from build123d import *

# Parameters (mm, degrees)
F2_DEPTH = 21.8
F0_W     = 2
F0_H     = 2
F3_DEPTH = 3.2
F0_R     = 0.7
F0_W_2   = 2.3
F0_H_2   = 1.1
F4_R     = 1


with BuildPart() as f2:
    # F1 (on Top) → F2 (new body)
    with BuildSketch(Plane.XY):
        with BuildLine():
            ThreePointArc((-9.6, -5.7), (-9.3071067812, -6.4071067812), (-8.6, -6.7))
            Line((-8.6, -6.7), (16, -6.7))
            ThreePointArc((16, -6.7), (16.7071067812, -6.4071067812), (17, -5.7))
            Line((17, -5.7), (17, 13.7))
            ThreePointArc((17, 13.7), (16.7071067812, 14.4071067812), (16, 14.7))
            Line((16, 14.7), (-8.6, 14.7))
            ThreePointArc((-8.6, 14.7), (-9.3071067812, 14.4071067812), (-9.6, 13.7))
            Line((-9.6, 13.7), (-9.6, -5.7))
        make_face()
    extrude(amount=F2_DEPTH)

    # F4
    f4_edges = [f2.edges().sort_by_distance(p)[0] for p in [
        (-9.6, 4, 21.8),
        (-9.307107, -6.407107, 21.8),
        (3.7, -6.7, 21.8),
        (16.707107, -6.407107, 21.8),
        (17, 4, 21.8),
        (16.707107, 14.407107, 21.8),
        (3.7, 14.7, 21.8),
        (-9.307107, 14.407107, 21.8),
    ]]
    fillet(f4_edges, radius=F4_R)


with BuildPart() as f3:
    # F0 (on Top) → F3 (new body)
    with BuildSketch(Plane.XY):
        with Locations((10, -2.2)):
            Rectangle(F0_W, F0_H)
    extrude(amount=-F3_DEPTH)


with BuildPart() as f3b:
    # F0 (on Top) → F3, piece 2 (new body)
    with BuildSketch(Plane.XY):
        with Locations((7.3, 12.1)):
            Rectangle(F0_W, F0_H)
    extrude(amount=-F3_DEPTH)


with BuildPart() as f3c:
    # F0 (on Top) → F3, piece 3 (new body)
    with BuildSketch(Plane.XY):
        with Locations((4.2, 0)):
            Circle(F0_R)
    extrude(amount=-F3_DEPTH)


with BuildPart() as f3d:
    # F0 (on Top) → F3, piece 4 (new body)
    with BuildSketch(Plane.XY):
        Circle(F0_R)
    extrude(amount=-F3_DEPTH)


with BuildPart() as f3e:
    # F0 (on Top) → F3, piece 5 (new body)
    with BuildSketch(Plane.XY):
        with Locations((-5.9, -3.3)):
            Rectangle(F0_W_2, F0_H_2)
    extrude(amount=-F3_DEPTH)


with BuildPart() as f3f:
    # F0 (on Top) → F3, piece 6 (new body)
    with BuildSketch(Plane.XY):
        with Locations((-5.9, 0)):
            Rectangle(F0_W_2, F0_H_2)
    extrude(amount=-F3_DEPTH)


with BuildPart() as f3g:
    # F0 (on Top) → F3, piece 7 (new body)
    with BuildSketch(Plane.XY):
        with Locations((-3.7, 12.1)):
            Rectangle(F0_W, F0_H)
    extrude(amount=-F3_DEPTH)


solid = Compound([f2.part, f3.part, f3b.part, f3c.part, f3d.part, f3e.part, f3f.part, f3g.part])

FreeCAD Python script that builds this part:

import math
import FreeCAD as App
import Part
import Sketcher

V = App.Vector


def edges_at(feature, points):
    """Names of the edges that pass closest to the given points."""
    edges = feature.Shape.Edges
    near = lambda p: min(range(len(edges)), key=lambda i: edges[i].distToShape(Part.Vertex(*p))[0])
    return sorted({f"Edge{near(p) + 1}" for p in points})


def add_polygon(sketch, points):
    """Adds a closed chain of lines whose ends are joined by coincident constraints."""
    first, n = sketch.GeometryCount, len(points)
    for a, b in zip(points, points[1:] + points[:1]):
        sketch.addGeometry(Part.LineSegment(App.Vector(*a, 0), App.Vector(*b, 0)), False)
    for i in range(n):
        sketch.addConstraint(Sketcher.Constraint("Coincident", first + i, 2, first + (i + 1) % n, 1))

doc = App.newDocument("Part")
body = doc.addObject("PartDesign::Body", "Body")

sketch1 = body.newObject("Sketcher::SketchObject", "Sketch")
sketch1.AttachmentSupport = (doc.getObject("XY_Plane"), [""])
sketch1.MapMode = "FlatFace"
sketch1.addGeometry([
    Part.ArcOfCircle(Part.Circle(V(-8.6, -5.7, 0), V(0, 0, 1), 1), math.radians(180), math.radians(270)),
    Part.LineSegment(V(-8.6, -6.7, 0), V(16, -6.7, 0)),
    Part.ArcOfCircle(Part.Circle(V(16, -5.7, 0), V(0, 0, 1), 1), math.radians(-90), math.radians(0)),
    Part.LineSegment(V(17, -5.7, 0), V(17, 13.7, 0)),
    Part.ArcOfCircle(Part.Circle(V(16, 13.7, 0), V(0, 0, 1), 1), math.radians(0), math.radians(90)),
    Part.LineSegment(V(16, 14.7, 0), V(-8.6, 14.7, 0)),
    Part.ArcOfCircle(Part.Circle(V(-8.6, 13.7, 0), V(0, 0, 1), 1), math.radians(90), math.radians(180)),
    Part.LineSegment(V(-9.6, 13.7, 0), V(-9.6, -5.7, 0)),
], False)
sketch1.addConstraint([
    Sketcher.Constraint("Tangent", 0, 2, 1, 1),
    Sketcher.Constraint("Tangent", 1, 2, 2, 1),
    Sketcher.Constraint("Tangent", 2, 2, 3, 1),
    Sketcher.Constraint("Tangent", 3, 2, 4, 1),
    Sketcher.Constraint("Tangent", 4, 2, 5, 1),
    Sketcher.Constraint("Tangent", 5, 2, 6, 1),
    Sketcher.Constraint("Tangent", 6, 2, 7, 1),
    Sketcher.Constraint("Tangent", 7, 2, 0, 1),
    Sketcher.Constraint("Horizontal", 1),
    Sketcher.Constraint("Vertical", 3),
    Sketcher.Constraint("Horizontal", 5),
    Sketcher.Constraint("Vertical", 7),
    Sketcher.Constraint("Equal", 0, 2),
    Sketcher.Constraint("Equal", 2, 4),
    Sketcher.Constraint("Equal", 4, 6),
    Sketcher.Constraint("Radius", 0, 1.0),
    Sketcher.Constraint("DistanceX", 1, 1, 1, 2, 24.6),
    Sketcher.Constraint("DistanceY", 3, 1, 3, 2, 19.4),
    Sketcher.Constraint("DistanceX", -1, 1, 2, 3, 16.0),
    Sketcher.Constraint("DistanceY", 0, 3, -1, 1, 5.7),
])
pad1 = body.newObject("PartDesign::Pad", "Pad")
pad1.Profile = sketch1
pad1.Length = 21.8
doc.recompute()

fillet = body.newObject("PartDesign::Fillet", "Fillet")
fillet.Base = (pad1, edges_at(pad1, [
    (-9.6, 4, 21.8),
    (-9.307, -6.407, 21.8),
    (3.7, -6.7, 21.8),
    (16.707, -6.407, 21.8),
    (17, 4, 21.8),
    (16.707, 14.407, 21.8),
    (3.7, 14.7, 21.8),
    (-9.307, 14.407, 21.8),
]))
fillet.Radius = 1
body2 = doc.addObject("PartDesign::Body", "Body001")

sketch2 = body2.newObject("Sketcher::SketchObject", "Sketch001")
sketch2.AttachmentSupport = (doc.getObject("XY_Plane001"), [""])
sketch2.MapMode = "FlatFace"
add_polygon(sketch2, [(9, -1.2), (9, -3.2), (11, -3.2), (11, -1.2)])
sketch2.addConstraint([
    Sketcher.Constraint("Vertical", 0),
    Sketcher.Constraint("Horizontal", 1),
    Sketcher.Constraint("Vertical", 2),
    Sketcher.Constraint("Horizontal", 3),
    Sketcher.Constraint("Equal", 3, 0),
    Sketcher.Constraint("DistanceX", 1, 1, 1, 2, 2.0),
    Sketcher.Constraint("DistanceX", -1, 1, 0, 2, 9.0),
    Sketcher.Constraint("DistanceY", 0, 2, -1, 1, 3.2),
])
pad2 = body2.newObject("PartDesign::Pad", "Pad001")
pad2.Profile = sketch2
pad2.Length = 3.2
pad2.Reversed = True
body3 = doc.addObject("PartDesign::Body", "Body002")

sketch3 = body3.newObject("Sketcher::SketchObject", "Sketch002")
sketch3.AttachmentSupport = (doc.getObject("XY_Plane002"), [""])
sketch3.MapMode = "FlatFace"
add_polygon(sketch3, [(6.3, 13.1), (6.3, 11.1), (8.3, 11.1), (8.3, 13.1)])
sketch3.addConstraint([
    Sketcher.Constraint("Vertical", 0),
    Sketcher.Constraint("Horizontal", 1),
    Sketcher.Constraint("Vertical", 2),
    Sketcher.Constraint("Horizontal", 3),
    Sketcher.Constraint("Equal", 3, 0),
    Sketcher.Constraint("DistanceX", 1, 1, 1, 2, 2.0),
    Sketcher.Constraint("DistanceX", -1, 1, 0, 2, 6.3),
    Sketcher.Constraint("DistanceY", -1, 1, 0, 2, 11.1),
])
pad3 = body3.newObject("PartDesign::Pad", "Pad002")
pad3.Profile = sketch3
pad3.Length = 3.2
pad3.Reversed = True
body4 = doc.addObject("PartDesign::Body", "Body003")

sketch4 = body4.newObject("Sketcher::SketchObject", "Sketch003")
sketch4.AttachmentSupport = (doc.getObject("XY_Plane003"), [""])
sketch4.MapMode = "FlatFace"
sketch4.addGeometry(Part.Circle(V(4.2, 0, 0), V(0, 0, 1), 0.7), False)
sketch4.addConstraint([
    Sketcher.Constraint("PointOnObject", 0, 3, -1),
    Sketcher.Constraint("Diameter", 0, 1.4),
    Sketcher.Constraint("DistanceX", -1, 1, 0, 3, 4.2),
])
pad4 = body4.newObject("PartDesign::Pad", "Pad003")
pad4.Profile = sketch4
pad4.Length = 3.2
pad4.Reversed = True
body5 = doc.addObject("PartDesign::Body", "Body004")

sketch5 = body5.newObject("Sketcher::SketchObject", "Sketch004")
sketch5.AttachmentSupport = (doc.getObject("XY_Plane004"), [""])
sketch5.MapMode = "FlatFace"
sketch5.addGeometry(Part.Circle(V(0, 0, 0), V(0, 0, 1), 0.7), False)
sketch5.addConstraint([
    Sketcher.Constraint("Coincident", 0, 3, -1, 1),
    Sketcher.Constraint("Diameter", 0, 1.4),
])
pad5 = body5.newObject("PartDesign::Pad", "Pad004")
pad5.Profile = sketch5
pad5.Length = 3.2
pad5.Reversed = True
body6 = doc.addObject("PartDesign::Body", "Body005")

sketch6 = body6.newObject("Sketcher::SketchObject", "Sketch005")
sketch6.AttachmentSupport = (doc.getObject("XY_Plane005"), [""])
sketch6.MapMode = "FlatFace"
add_polygon(sketch6, [(-7, -2.8), (-7, -3.9), (-4.8, -3.9), (-4.8, -2.8)])
sketch6.addConstraint([
    Sketcher.Constraint("Vertical", 0),
    Sketcher.Constraint("Horizontal", 1),
    Sketcher.Constraint("Vertical", 2),
    Sketcher.Constraint("Horizontal", 3),
    Sketcher.Constraint("DistanceX", 1, 1, 1, 2, 2.3),
    Sketcher.Constraint("DistanceY", 0, 2, 0, 1, 1.1),
    Sketcher.Constraint("DistanceX", 0, 2, -1, 1, 7.05),
    Sketcher.Constraint("DistanceY", 0, 2, -1, 1, 3.85),
])
pad6 = body6.newObject("PartDesign::Pad", "Pad005")
pad6.Profile = sketch6
pad6.Length = 3.2
pad6.Reversed = True
body7 = doc.addObject("PartDesign::Body", "Body006")

sketch7 = body7.newObject("Sketcher::SketchObject", "Sketch006")
sketch7.AttachmentSupport = (doc.getObject("XY_Plane006"), [""])
sketch7.MapMode = "FlatFace"
add_polygon(sketch7, [(-7, 0.6), (-7, -0.6), (-4.8, -0.6), (-4.8, 0.6)])
sketch7.addConstraint([
    Sketcher.Constraint("Vertical", 0),
    Sketcher.Constraint("Horizontal", 1),
    Sketcher.Constraint("Vertical", 2),
    Sketcher.Constraint("Horizontal", 3),
    Sketcher.Constraint("DistanceX", 1, 1, 1, 2, 2.3),
    Sketcher.Constraint("DistanceY", 0, 2, 0, 1, 1.1),
    Sketcher.Constraint("DistanceX", 0, 2, -1, 1, 7.05),
    Sketcher.Constraint("DistanceY", 0, 2, -1, 1, 0.55),
])
pad7 = body7.newObject("PartDesign::Pad", "Pad006")
pad7.Profile = sketch7
pad7.Length = 3.2
pad7.Reversed = True
body8 = doc.addObject("PartDesign::Body", "Body007")

sketch8 = body8.newObject("Sketcher::SketchObject", "Sketch007")
sketch8.AttachmentSupport = (doc.getObject("XY_Plane007"), [""])
sketch8.MapMode = "FlatFace"
add_polygon(sketch8, [(-4.7, 13.1), (-4.7, 11.1), (-2.7, 11.1), (-2.7, 13.1)])
sketch8.addConstraint([
    Sketcher.Constraint("Vertical", 0),
    Sketcher.Constraint("Horizontal", 1),
    Sketcher.Constraint("Vertical", 2),
    Sketcher.Constraint("Horizontal", 3),
    Sketcher.Constraint("Equal", 3, 0),
    Sketcher.Constraint("DistanceX", 1, 1, 1, 2, 2.0),
    Sketcher.Constraint("DistanceX", 0, 2, -1, 1, 4.7),
    Sketcher.Constraint("DistanceY", -1, 1, 0, 2, 11.1),
])
pad8 = body8.newObject("PartDesign::Pad", "Pad007")
pad8.Profile = sketch8
pad8.Length = 3.2
pad8.Reversed = True

doc.recompute()
